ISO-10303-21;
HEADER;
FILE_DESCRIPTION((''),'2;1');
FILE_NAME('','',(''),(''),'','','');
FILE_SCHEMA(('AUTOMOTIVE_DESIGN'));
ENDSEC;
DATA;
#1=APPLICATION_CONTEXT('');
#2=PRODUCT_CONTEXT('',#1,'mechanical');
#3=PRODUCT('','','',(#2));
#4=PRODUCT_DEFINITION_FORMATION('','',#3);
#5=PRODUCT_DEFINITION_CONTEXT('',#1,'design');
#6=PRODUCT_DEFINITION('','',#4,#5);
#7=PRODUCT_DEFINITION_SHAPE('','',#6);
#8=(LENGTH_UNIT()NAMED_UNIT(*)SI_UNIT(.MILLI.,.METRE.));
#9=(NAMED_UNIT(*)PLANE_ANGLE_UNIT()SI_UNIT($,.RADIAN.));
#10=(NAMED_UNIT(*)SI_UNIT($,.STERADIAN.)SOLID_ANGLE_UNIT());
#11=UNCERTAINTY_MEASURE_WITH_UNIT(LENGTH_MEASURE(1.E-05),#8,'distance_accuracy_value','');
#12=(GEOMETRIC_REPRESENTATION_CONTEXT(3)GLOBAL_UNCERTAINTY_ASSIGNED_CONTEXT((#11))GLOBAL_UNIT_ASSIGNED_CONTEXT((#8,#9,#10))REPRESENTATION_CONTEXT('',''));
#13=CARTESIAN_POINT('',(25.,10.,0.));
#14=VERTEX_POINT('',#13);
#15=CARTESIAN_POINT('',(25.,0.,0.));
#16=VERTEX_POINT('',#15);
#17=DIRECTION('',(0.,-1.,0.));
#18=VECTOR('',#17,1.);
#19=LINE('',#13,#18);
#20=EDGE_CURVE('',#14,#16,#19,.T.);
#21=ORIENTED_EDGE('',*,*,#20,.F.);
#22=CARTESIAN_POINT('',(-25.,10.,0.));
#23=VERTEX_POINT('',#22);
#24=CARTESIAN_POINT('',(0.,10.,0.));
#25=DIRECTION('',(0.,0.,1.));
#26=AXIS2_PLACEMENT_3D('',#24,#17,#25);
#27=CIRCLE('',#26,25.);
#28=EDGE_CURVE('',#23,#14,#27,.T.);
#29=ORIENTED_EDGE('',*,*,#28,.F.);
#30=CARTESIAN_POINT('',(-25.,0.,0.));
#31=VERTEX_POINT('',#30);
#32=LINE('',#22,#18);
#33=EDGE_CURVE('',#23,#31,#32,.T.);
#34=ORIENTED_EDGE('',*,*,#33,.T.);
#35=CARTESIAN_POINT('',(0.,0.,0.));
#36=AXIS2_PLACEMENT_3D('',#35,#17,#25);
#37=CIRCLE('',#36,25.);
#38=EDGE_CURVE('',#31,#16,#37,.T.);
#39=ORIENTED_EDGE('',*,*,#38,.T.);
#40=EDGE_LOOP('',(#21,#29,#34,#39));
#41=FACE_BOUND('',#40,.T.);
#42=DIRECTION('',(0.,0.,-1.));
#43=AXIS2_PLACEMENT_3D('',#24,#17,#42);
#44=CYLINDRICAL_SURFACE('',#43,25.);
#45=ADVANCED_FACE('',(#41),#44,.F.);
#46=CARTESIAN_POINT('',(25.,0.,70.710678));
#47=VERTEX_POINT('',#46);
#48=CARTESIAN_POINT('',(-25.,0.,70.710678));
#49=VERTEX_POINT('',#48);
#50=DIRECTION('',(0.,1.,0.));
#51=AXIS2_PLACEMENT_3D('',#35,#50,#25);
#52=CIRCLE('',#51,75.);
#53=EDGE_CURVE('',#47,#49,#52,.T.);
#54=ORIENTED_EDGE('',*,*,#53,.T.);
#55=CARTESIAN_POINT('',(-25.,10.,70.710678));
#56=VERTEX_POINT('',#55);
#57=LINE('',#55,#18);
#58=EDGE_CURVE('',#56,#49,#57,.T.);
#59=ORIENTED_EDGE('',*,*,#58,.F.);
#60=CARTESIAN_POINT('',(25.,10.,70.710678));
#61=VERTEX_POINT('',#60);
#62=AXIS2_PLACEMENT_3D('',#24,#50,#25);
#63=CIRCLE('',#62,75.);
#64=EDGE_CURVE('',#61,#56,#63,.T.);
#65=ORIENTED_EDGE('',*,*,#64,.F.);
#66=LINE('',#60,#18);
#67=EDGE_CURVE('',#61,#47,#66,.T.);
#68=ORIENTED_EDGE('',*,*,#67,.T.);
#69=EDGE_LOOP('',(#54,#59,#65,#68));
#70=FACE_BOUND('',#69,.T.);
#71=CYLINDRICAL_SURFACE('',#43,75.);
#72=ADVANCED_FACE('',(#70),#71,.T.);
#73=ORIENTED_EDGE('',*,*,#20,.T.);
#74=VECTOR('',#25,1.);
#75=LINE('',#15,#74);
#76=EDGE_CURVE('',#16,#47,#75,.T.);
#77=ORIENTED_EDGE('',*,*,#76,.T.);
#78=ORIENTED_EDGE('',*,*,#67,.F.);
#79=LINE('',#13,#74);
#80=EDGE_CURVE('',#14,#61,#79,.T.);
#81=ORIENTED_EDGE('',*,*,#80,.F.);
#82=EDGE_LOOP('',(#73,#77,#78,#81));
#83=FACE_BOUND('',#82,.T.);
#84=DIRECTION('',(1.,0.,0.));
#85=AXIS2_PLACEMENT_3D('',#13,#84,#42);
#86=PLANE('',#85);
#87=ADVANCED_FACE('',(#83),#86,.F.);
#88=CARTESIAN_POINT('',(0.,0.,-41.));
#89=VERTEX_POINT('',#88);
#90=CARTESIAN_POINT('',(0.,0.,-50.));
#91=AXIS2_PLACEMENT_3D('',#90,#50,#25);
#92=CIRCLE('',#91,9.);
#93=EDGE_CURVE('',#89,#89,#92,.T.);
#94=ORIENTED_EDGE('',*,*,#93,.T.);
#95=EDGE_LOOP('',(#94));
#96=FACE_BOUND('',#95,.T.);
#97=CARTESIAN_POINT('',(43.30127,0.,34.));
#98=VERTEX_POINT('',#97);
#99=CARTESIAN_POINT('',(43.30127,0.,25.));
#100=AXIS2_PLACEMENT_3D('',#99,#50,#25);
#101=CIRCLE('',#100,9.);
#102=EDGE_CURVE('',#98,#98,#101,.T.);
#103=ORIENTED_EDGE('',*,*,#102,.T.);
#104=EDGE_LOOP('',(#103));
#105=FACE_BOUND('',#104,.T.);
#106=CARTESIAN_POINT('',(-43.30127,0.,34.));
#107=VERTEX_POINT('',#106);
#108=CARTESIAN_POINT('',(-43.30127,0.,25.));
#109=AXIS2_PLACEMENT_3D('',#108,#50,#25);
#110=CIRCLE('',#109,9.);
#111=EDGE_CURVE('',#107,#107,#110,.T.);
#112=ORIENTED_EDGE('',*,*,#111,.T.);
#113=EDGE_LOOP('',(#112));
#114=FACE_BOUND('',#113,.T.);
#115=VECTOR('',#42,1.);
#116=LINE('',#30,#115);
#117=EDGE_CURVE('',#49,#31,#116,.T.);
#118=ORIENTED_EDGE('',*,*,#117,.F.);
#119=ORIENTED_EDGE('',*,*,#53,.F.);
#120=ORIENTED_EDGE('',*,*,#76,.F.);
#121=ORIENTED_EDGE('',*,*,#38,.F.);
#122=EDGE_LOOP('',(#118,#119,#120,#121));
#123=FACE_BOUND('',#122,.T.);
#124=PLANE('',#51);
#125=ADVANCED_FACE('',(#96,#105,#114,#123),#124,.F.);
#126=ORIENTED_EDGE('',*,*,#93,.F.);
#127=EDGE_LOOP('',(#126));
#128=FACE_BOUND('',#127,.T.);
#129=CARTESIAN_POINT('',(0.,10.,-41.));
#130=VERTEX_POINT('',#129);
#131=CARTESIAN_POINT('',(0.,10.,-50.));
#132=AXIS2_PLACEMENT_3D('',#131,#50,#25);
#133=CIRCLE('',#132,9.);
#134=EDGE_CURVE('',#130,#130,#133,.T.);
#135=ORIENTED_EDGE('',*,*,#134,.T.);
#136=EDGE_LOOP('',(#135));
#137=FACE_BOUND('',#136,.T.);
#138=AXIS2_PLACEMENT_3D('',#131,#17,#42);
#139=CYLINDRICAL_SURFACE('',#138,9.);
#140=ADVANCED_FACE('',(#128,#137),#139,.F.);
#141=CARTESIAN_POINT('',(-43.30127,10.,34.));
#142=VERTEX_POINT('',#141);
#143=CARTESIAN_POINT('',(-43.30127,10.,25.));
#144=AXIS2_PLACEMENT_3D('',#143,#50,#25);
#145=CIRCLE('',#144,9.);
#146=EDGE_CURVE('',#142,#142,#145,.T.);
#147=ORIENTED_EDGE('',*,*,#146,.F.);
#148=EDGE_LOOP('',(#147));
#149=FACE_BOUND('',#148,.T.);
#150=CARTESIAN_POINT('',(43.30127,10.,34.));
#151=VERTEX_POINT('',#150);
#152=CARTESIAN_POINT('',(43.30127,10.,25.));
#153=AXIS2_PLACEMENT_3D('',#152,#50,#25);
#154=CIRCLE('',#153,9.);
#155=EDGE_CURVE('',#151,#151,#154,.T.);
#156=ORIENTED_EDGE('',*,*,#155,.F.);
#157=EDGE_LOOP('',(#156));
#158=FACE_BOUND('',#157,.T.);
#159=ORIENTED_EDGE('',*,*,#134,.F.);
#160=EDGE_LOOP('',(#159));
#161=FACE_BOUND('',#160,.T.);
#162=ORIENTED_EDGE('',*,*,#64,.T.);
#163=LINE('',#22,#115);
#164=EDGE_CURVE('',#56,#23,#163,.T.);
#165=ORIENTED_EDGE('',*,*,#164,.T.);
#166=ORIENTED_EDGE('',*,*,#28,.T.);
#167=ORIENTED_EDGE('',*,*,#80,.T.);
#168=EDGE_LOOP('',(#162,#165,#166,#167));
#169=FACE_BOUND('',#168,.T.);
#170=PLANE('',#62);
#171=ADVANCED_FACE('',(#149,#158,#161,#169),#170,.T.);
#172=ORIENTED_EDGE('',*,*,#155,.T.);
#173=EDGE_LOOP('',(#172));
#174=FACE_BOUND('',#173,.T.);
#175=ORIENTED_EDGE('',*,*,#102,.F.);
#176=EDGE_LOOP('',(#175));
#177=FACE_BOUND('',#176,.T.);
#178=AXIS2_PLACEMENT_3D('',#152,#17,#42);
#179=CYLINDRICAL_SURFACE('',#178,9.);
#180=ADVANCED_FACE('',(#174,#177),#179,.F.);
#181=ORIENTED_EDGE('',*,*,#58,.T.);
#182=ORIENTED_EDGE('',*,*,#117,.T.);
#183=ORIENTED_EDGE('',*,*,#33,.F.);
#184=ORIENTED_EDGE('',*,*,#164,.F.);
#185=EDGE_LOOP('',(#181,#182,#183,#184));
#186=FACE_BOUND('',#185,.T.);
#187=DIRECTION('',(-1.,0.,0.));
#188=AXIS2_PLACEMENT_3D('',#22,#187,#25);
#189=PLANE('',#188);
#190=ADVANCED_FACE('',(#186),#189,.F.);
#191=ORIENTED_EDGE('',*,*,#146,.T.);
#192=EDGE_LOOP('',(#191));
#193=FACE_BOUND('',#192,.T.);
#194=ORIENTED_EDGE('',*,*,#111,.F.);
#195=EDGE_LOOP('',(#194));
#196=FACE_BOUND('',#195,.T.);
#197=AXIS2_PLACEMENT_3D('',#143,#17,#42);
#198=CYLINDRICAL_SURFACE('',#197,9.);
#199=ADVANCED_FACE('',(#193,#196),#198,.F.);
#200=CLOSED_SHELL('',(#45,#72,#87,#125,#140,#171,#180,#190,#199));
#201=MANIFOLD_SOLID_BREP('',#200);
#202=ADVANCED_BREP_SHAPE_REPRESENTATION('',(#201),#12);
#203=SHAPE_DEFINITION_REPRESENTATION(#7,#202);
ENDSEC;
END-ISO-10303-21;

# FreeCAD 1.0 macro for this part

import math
import FreeCAD as App
import Part
import Sketcher
from FreeCAD import Vector

doc = App.newDocument("Part")
params = doc.addObject("Spreadsheet::Sheet", "Params")
for row, (alias, value) in enumerate([
    ("sketch1_diameter", "18 mm"),
    ("sketch1_radius", "75 mm"),
    ("sketch1_radius2", "25 mm"),
    ("pad1_length", "10 mm"),
], start=1):
    params.set(f"A{row}", alias)
    params.set(f"B{row}", "=" + value)
    params.setAlias(f"B{row}", alias)

body = doc.addObject("PartDesign::Body", "Body")

sketch1 = doc.addObject("Sketcher::SketchObject", "Sketch")
body.addObject(sketch1)
sketch1.AttachmentSupport = (doc.XZ_Plane, [""])
sketch1.MapMode = "FlatFace"
sketch1.addGeometry(Part.LineSegment(Vector(25, 0, 0), Vector(25, 71, 0)), False)
sketch1.addGeometry(Part.ArcOfCircle(Part.Circle(Vector(0, 0, 0), Vector(0, 0, 1), 75), math.radians(109), math.radians(431)), False)
sketch1.addGeometry(Part.LineSegment(Vector(-25, 71, 0), Vector(-25, 0, 0)), False)
sketch1.addGeometry(Part.ArcOfCircle(Part.Circle(Vector(0, 0, 0), Vector(0, 0, 1), 25), math.radians(180), math.radians(360)), False)
sketch1.addGeometry(Part.Circle(Vector(-43, 25, 0), Vector(0, 0, 1), 9), False)
sketch1.addGeometry(Part.Circle(Vector(43, 25, 0), Vector(0, 0, 1), 9), False)
sketch1.addGeometry(Part.Circle(Vector(0, -50, 0), Vector(0, 0, 1), 9), False)
sketch1.addConstraint(Sketcher.Constraint("Coincident", 0, 2, 1, 2))
sketch1.addConstraint(Sketcher.Constraint("Coincident", 1, 1, 2, 1))
sketch1.addConstraint(Sketcher.Constraint("Tangent", 2, 2, 3, 1))
sketch1.addConstraint(Sketcher.Constraint("Tangent", 3, 2, 0, 1))
sketch1.addConstraint(Sketcher.Constraint("Vertical", 0))
sketch1.addConstraint(Sketcher.Constraint("Vertical", 2))
sketch1.addConstraint(Sketcher.Constraint("Coincident", 1, 3, -1, 1))
sketch1.addConstraint(Sketcher.Constraint("Coincident", 3, 3, -1, 1))
sketch1.addConstraint(Sketcher.Constraint("Equal", 4, 5))
sketch1.addConstraint(Sketcher.Constraint("Equal", 5, 6))
sketch1.addConstraint(Sketcher.Constraint("Symmetric", 4, 3, 5, 3, -2))
sketch1.addConstraint(Sketcher.Constraint("PointOnObject", 6, 3, -2))
sketch1.addConstraint(Sketcher.Constraint("Diameter", 4, 18.0))
sketch1.addConstraint(Sketcher.Constraint("Radius", 1, 75.0))
sketch1.addConstraint(Sketcher.Constraint("Radius", 3, 25.0))
sketch1.addConstraint(Sketcher.Constraint("DistanceY", -1, 1, 4, 3, 25.0))
sketch1.addConstraint(Sketcher.Constraint("DistanceY", 6, 3, -1, 1, 50.0))
sketch1.addConstraint(Sketcher.Constraint("DistanceX", 4, 3, -1, 1, 43.30127))
sketch1.setExpression("Constraints[12]", "Params.sketch1_diameter")
sketch1.setExpression("Constraints[13]", "Params.sketch1_radius")
sketch1.setExpression("Constraints[14]", "Params.sketch1_radius2")
pad1 = doc.addObject("PartDesign::Pad", "Pad")
body.addObject(pad1)
pad1.Profile = sketch1
pad1.setExpression("Length", "Params.pad1_length")
pad1.Reversed = True

doc.recompute()
